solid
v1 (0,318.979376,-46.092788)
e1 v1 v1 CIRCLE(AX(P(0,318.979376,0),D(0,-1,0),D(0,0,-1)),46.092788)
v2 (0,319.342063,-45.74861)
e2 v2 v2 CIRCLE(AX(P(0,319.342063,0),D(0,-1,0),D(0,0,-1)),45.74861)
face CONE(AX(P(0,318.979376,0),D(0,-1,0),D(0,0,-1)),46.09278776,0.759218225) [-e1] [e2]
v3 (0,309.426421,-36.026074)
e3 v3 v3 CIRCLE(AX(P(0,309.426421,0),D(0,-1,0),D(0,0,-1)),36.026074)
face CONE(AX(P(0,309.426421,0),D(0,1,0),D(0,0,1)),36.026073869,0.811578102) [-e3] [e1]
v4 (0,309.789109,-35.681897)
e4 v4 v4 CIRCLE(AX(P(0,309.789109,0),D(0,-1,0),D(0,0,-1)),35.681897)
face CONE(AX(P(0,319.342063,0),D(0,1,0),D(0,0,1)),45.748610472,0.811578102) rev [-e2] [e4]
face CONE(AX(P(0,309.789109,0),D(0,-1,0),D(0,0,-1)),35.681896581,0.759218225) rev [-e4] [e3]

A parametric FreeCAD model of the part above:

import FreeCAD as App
import Part
import Sketcher
Q = App.Units.Quantity


def add_polygon(sketch, points):
    """Adds a closed chain of lines whose ends are joined by coincident constraints."""
    first, n = sketch.GeometryCount, len(points)
    for a, b in zip(points, points[1:] + points[:1]):
        sketch.addGeometry(Part.LineSegment(App.Vector(*a, 0), App.Vector(*b, 0)), False)
    for i in range(n):
        sketch.addConstraint(Sketcher.Constraint("Coincident", first + i, 2, first + (i + 1) % n, 1))

doc = App.newDocument("Part")
params = doc.addObject("Spreadsheet::Sheet", "Params")
for row, (alias, value) in enumerate([
    ("sketch1_length", "0.5 mm"),
    ("revolution_angle", "360 deg"),
], start=1):
    params.set(f"A{row}", alias)
    params.set(f"B{row}", "=" + value)
    params.setAlias(f"B{row}", alias)

body = doc.addObject("PartDesign::Body", "Body")

sketch1 = doc.addObject("Sketcher::SketchObject", "Sketch")
body.addObject(sketch1)
sketch1.AttachmentSupport = (doc.YZ_Plane, [""])
sketch1.MapMode = "FlatFace"
add_polygon(sketch1, [(309.79, -35.68), (309.43, -36.03), (318.98, -46.09), (319.34, -45.75)])
sketch1.addConstraint([
    Sketcher.Constraint("Perpendicular", 0, 1),
    Sketcher.Constraint("Perpendicular", 1, 2),
    Sketcher.Constraint("Perpendicular", 2, 3),
    Sketcher.Constraint("Angle", 0, Q("-136.5 deg")),
    Sketcher.Constraint("Distance", 0, 0.5),
    Sketcher.Constraint("DistanceX", -1, 1, 0, 2, 309.426421),
    Sketcher.Constraint("DistanceY", 2, 2, -1, 1, 45.74861),
    Sketcher.Constraint("DistanceX", 0, 2, 2, 2, 9.915642),
])
sketch1.setExpression("Constraints[8]", "Params.sketch1_length")
revolution = doc.addObject("PartDesign::Revolution", "Revolution")
body.addObject(revolution)
revolution.Profile = sketch1
revolution.ReferenceAxis = (sketch1, ["H_Axis"])
revolution.setExpression("Angle", "Params.revolution_angle")

doc.recompute()
